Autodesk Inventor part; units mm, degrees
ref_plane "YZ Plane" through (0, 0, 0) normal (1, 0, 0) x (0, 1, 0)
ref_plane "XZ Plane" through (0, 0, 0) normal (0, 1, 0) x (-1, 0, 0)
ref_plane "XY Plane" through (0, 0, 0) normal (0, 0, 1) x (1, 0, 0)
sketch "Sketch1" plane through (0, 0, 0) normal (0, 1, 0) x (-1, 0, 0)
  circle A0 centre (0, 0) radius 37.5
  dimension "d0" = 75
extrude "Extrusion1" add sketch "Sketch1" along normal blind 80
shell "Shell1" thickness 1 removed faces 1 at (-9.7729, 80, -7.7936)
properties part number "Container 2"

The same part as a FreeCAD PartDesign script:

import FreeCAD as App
import Part
import Sketcher
from FreeCAD import Vector


def faces_at(feature, points):
    """Names of the faces that lie closest to the given points."""
    faces = feature.Shape.Faces
    near = lambda p: min(range(len(faces)), key=lambda i: faces[i].distToShape(Part.Vertex(*p))[0])
    return sorted({f"Face{near(p) + 1}" for p in points})

doc = App.newDocument("Part")
body = doc.addObject("PartDesign::Body", "Body")

# Sketch on XZ plane
sketch1 = body.newObject("Sketcher::SketchObject", "Sketch")
sketch1.AttachmentSupport = (doc.getObject("XZ_Plane"), [""])
sketch1.MapMode = "FlatFace"
sketch1.addGeometry(Part.Circle(Vector(0, 0, 0), Vector(0, 0, 1), 38), False)
sketch1.addConstraint([
    Sketcher.Constraint("Coincident", 0, 3, -1, 1),
    Sketcher.Constraint("Diameter", 0, 75.0),
])
pad1 = body.newObject("PartDesign::Pad", "Pad")
pad1.Profile = sketch1
pad1.Length = 80
pad1.Reversed = True
doc.recompute()

thickness = body.newObject("PartDesign::Thickness", "Thickness")
thickness.Base = (pad1, faces_at(pad1, [(-9.773, 80, -7.794)]))
thickness.Value = 1
thickness.Reversed = True
thickness.Join = "Intersection"

doc.recompute()
